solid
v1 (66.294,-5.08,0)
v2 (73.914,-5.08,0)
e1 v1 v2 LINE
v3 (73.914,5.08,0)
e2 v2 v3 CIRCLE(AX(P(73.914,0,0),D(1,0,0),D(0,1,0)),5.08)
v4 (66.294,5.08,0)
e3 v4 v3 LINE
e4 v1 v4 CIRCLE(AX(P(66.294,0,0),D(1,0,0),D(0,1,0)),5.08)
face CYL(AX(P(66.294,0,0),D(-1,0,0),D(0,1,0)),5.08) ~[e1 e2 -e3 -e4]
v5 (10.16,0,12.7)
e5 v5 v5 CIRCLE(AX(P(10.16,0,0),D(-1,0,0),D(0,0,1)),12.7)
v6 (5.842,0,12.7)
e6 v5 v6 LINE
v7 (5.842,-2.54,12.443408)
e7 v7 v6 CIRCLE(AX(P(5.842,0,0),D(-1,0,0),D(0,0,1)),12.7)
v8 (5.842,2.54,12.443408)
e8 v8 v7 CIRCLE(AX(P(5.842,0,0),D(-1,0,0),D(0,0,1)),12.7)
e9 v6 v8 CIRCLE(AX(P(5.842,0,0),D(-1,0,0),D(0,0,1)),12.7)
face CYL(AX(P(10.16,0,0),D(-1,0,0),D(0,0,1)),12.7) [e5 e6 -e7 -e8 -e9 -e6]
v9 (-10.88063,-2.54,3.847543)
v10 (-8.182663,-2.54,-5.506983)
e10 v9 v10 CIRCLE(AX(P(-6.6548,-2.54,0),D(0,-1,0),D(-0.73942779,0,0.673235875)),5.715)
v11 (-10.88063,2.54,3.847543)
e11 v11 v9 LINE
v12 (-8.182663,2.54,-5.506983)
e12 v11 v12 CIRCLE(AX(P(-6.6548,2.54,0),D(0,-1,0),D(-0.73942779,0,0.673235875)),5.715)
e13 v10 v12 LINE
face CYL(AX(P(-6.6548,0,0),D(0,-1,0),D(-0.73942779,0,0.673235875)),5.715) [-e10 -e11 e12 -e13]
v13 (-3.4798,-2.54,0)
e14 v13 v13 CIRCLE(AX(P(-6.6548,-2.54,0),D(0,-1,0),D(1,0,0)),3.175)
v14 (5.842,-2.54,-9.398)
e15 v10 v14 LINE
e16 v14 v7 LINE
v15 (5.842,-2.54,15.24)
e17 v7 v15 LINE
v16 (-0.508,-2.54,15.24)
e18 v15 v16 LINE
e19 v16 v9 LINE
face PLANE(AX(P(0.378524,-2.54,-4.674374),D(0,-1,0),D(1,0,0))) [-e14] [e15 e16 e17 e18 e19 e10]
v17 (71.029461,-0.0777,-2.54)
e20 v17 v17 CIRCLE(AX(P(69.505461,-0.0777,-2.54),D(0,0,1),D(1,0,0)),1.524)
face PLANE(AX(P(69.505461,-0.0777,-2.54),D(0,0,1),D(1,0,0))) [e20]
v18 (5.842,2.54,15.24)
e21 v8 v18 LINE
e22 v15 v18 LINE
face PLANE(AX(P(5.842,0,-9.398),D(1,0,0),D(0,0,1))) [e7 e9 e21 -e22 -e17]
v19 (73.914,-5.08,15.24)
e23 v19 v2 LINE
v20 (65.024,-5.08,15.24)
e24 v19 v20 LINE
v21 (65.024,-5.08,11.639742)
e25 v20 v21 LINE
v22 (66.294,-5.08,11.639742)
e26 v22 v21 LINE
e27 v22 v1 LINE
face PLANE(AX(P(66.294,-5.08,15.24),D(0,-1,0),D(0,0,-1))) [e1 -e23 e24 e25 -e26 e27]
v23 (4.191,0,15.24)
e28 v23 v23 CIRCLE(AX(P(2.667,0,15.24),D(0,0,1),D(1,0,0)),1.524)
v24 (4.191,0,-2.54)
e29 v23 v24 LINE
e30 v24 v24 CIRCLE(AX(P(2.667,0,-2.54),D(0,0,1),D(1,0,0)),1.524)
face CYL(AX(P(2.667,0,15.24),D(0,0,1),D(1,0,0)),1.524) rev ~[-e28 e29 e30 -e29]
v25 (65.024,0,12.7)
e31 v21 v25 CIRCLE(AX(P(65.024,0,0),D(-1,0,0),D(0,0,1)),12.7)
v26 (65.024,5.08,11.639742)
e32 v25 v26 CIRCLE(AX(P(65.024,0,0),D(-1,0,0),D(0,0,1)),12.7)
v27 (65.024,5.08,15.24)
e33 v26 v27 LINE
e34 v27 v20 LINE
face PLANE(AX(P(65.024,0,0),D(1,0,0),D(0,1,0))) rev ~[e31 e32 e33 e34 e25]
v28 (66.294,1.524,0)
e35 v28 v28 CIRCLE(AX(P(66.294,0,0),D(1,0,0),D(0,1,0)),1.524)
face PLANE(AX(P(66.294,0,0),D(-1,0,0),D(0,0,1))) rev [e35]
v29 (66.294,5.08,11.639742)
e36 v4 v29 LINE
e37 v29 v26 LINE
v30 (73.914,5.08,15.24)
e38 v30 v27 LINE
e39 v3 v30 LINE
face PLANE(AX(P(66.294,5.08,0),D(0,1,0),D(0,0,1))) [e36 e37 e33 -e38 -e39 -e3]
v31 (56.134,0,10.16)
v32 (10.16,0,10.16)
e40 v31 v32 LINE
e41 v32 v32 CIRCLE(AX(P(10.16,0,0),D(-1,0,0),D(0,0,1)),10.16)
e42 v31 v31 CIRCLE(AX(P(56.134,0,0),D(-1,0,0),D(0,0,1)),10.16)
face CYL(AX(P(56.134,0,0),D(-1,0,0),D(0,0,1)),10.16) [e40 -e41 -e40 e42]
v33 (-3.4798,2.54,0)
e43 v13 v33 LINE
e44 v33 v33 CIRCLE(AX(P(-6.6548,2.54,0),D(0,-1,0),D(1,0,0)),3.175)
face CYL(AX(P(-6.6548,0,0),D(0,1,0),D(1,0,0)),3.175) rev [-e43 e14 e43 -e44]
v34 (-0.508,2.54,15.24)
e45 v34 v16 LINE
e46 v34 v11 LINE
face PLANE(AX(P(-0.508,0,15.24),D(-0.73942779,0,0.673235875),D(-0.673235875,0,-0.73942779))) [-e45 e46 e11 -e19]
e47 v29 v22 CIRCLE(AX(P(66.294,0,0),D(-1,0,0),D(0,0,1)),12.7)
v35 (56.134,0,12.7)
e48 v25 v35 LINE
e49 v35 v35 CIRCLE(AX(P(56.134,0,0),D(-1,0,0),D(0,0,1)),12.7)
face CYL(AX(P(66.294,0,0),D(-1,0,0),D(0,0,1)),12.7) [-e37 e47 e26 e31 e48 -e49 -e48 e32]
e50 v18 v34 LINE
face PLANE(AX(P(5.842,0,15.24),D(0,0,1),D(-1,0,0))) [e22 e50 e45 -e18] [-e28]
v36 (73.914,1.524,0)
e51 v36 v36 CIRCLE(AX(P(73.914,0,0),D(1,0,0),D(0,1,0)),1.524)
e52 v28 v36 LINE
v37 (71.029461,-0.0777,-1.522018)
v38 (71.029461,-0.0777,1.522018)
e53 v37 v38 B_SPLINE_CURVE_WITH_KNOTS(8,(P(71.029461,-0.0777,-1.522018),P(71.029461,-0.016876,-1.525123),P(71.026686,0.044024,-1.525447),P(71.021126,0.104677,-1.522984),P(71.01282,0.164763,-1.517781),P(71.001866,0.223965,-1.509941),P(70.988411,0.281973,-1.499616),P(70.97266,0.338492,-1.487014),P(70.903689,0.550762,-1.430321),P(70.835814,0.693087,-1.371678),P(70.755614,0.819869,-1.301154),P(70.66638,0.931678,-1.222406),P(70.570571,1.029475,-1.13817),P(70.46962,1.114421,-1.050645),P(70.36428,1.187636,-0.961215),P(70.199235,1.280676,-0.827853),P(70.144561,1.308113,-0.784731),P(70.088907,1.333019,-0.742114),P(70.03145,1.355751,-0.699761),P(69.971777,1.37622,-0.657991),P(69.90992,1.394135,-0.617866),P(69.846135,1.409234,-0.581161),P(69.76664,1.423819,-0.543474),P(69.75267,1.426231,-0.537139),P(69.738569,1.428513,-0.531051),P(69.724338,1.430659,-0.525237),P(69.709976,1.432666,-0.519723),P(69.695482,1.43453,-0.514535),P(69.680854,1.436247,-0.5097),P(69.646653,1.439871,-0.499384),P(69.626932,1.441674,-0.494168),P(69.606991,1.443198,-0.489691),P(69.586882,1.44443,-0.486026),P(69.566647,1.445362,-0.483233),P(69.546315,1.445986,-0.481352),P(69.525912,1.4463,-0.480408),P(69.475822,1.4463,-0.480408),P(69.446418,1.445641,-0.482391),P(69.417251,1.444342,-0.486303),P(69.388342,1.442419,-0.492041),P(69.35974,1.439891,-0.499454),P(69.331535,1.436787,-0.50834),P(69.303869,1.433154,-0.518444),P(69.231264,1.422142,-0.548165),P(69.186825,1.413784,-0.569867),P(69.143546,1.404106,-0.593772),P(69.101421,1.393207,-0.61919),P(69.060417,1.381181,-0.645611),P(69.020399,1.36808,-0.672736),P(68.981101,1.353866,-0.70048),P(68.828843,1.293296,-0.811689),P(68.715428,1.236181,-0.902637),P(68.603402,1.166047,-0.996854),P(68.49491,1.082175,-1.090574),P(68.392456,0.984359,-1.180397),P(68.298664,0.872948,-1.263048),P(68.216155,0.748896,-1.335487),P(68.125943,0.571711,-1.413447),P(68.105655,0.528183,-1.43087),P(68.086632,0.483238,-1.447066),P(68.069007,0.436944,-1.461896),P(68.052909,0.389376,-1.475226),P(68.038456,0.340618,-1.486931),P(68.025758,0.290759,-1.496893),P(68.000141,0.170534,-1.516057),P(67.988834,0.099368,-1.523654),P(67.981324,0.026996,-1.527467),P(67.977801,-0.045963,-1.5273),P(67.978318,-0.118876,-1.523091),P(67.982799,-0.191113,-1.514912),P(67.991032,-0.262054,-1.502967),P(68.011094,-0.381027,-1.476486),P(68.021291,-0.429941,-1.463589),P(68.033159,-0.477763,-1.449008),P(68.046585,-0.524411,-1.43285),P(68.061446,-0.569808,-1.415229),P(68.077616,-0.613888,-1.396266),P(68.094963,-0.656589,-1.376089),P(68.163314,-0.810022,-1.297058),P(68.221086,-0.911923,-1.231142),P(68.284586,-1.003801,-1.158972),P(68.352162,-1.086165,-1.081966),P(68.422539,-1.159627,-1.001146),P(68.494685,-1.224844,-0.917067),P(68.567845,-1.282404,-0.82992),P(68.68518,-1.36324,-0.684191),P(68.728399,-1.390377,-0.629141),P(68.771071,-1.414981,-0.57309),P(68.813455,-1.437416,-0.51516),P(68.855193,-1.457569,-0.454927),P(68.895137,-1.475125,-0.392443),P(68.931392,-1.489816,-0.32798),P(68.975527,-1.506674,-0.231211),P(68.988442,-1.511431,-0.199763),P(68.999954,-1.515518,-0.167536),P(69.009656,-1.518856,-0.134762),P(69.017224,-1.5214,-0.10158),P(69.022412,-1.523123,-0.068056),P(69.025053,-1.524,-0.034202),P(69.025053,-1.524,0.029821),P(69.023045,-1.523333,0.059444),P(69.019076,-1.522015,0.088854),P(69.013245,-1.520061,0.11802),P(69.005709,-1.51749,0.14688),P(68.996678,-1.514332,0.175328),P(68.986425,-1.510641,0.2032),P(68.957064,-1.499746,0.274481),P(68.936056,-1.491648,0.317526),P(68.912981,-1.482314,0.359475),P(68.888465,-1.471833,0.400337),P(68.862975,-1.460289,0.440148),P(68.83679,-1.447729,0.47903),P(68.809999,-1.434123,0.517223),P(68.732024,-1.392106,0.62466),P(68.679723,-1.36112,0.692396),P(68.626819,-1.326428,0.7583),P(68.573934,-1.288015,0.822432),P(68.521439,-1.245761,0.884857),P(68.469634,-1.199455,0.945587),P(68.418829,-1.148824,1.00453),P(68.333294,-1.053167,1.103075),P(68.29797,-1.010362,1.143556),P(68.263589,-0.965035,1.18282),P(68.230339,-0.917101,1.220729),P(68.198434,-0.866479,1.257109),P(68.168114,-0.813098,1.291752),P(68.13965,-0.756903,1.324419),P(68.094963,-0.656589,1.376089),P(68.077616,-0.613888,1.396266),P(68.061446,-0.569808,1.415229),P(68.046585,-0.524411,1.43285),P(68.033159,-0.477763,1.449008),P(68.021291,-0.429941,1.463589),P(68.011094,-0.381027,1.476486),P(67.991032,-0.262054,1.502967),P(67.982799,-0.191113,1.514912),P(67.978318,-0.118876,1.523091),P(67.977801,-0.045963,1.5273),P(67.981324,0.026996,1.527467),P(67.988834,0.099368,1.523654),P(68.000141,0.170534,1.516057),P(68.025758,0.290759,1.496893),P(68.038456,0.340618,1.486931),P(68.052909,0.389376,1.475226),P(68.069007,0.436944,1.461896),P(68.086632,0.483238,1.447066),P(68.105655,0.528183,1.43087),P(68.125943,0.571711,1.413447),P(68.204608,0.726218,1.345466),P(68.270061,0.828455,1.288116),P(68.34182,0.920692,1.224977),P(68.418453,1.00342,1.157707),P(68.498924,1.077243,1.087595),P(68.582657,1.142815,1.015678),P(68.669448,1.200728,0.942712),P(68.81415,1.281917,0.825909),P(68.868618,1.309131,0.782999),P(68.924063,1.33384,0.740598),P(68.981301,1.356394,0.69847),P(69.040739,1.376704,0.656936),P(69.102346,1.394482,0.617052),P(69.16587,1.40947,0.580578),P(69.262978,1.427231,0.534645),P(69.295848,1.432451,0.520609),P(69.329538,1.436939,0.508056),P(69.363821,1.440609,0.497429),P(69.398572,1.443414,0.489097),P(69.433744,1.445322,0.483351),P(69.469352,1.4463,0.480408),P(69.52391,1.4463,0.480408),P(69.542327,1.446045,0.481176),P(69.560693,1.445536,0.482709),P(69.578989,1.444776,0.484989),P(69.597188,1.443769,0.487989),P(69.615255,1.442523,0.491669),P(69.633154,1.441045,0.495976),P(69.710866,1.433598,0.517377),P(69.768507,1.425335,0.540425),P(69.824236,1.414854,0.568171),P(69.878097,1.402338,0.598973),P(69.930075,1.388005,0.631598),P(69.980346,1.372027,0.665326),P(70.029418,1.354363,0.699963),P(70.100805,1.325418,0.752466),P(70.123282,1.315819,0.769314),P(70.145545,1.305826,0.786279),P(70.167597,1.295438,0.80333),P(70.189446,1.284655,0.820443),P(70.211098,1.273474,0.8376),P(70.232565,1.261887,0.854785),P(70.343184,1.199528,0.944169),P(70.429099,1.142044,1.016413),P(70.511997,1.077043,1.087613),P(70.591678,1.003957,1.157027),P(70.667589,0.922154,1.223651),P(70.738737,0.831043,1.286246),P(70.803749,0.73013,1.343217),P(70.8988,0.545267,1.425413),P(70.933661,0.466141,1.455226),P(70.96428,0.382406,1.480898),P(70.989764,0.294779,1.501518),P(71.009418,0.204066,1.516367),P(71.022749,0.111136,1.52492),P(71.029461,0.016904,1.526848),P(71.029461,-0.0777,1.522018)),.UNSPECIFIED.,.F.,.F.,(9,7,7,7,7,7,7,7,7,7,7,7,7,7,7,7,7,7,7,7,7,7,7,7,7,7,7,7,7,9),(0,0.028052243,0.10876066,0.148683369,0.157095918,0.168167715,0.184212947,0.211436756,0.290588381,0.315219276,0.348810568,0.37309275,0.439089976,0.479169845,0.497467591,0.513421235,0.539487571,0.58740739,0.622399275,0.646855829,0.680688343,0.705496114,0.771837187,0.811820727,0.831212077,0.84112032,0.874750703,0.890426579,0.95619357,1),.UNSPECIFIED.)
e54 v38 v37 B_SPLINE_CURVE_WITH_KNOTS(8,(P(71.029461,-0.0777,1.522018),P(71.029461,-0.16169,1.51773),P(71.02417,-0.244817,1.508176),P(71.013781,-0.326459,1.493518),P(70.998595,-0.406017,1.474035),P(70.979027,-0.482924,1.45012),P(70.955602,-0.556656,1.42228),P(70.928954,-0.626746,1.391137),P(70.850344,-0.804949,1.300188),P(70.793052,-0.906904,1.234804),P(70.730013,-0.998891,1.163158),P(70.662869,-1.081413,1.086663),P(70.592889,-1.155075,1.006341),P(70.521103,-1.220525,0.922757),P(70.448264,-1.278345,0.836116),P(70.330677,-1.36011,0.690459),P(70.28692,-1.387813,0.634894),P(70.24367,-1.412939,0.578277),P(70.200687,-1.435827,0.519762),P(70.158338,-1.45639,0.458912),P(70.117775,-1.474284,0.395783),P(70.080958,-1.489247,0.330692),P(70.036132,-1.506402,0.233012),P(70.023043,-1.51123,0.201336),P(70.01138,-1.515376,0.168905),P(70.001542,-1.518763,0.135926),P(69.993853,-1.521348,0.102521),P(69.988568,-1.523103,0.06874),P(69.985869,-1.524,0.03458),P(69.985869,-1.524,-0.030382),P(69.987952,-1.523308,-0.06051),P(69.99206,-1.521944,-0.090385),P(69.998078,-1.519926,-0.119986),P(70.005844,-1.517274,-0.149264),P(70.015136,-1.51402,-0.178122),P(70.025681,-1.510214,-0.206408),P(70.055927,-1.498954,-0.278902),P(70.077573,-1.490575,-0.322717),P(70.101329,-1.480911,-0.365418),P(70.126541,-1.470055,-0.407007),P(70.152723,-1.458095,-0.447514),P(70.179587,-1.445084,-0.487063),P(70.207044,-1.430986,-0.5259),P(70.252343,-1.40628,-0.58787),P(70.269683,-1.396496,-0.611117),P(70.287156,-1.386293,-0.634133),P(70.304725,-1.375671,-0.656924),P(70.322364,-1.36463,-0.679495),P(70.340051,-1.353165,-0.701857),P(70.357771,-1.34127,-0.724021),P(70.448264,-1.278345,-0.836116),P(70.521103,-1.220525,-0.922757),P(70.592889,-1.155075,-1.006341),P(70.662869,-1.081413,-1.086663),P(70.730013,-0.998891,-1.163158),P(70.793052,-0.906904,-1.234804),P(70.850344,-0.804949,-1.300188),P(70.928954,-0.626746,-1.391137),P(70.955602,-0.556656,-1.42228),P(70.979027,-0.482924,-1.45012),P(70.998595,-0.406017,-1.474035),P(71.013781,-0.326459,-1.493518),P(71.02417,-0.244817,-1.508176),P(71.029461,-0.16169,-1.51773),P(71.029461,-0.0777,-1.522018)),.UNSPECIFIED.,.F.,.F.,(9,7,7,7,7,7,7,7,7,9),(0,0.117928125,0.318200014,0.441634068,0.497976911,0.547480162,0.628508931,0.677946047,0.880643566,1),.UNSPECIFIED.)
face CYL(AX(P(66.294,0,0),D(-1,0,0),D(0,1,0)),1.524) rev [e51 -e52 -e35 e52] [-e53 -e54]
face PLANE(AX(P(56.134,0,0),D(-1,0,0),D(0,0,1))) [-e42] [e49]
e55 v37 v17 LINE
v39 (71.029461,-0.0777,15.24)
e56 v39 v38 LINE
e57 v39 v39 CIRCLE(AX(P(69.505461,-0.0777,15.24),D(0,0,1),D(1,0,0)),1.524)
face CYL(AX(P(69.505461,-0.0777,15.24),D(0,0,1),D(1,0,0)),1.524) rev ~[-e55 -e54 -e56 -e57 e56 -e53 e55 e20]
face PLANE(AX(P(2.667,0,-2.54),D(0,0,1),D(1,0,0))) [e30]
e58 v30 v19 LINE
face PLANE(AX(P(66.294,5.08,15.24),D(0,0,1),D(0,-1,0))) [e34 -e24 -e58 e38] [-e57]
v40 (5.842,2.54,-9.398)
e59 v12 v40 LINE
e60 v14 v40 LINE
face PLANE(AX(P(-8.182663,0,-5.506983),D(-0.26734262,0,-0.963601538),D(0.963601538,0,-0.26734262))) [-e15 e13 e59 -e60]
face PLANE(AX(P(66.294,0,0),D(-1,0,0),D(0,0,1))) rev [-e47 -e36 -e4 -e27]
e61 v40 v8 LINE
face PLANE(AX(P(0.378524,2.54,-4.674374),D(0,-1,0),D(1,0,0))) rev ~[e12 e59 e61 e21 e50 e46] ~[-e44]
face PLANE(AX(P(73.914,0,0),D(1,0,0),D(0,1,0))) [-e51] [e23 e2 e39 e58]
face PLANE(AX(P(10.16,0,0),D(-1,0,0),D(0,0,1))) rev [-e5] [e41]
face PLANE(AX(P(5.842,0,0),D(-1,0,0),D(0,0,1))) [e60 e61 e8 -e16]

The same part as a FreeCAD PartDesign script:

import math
import FreeCAD as App
import Part
import Sketcher
from FreeCAD import Vector
Q = App.Units.Quantity

doc = App.newDocument("Part")
body = doc.addObject("PartDesign::Body", "Body")

# Sketch on XZ plane
sketch1 = doc.addObject("Sketcher::SketchObject", "Sketch")
body.addObject(sketch1)
sketch1.AttachmentSupport = (doc.XZ_Plane, [""])
sketch1.MapMode = "FlatFace"
sketch1.addGeometry([
    Part.LineSegment(Vector(5.8, 12.7, 0), Vector(5.8, 0, 0)),  # 0
    Part.LineSegment(Vector(5.8, 0, 0), Vector(66.3, 0, 0)),  # 1
    Part.LineSegment(Vector(66.3, 0, 0), Vector(66.3, 12.7, 0)),  # 2
    Part.LineSegment(Vector(66.3, 12.7, 0), Vector(56.1, 12.7, 0)),  # 3
    Part.LineSegment(Vector(56.1, 12.7, 0), Vector(56.1, 10.2, 0)),  # 4
    Part.LineSegment(Vector(56.1, 10.2, 0), Vector(10.2, 10.2, 0)),  # 5
    Part.LineSegment(Vector(10.2, 10.2, 0), Vector(10.2, 12.7, 0)),  # 6
    Part.LineSegment(Vector(10.2, 12.7, 0), Vector(5.8, 12.7, 0)),  # 7
], False)
sketch1.addConstraint([
    Sketcher.Constraint("Coincident", 0, 2, 1, 1),
    Sketcher.Constraint("Coincident", 1, 2, 2, 1),
    Sketcher.Constraint("Coincident", 2, 2, 3, 1),
    Sketcher.Constraint("Coincident", 3, 2, 4, 1),
    Sketcher.Constraint("Coincident", 4, 2, 5, 1),
    Sketcher.Constraint("Coincident", 5, 2, 6, 1),
    Sketcher.Constraint("Coincident", 6, 2, 7, 1),
    Sketcher.Constraint("Coincident", 7, 2, 0, 1),
    Sketcher.Constraint("Vertical", 0),
    Sketcher.Constraint("Horizontal", 1),
    Sketcher.Constraint("Vertical", 2),
    Sketcher.Constraint("Horizontal", 3),
    Sketcher.Constraint("Vertical", 4),
    Sketcher.Constraint("Horizontal", 5),
    Sketcher.Constraint("Vertical", 6),
    Sketcher.Constraint("Horizontal", 7),
    Sketcher.Constraint("PointOnObject", 0, 2, -1),
    Sketcher.Constraint("Horizontal", 3, 2, 6, 2),
    Sketcher.Constraint("DistanceX", 3, 2, 3, 1, Q("0.4 in")),
    Sketcher.Constraint("DistanceY", 0, 2, 0, 1, Q("0.5 in")),
    Sketcher.Constraint("DistanceY", 4, 2, 4, 1, Q("0.1 in")),
    Sketcher.Constraint("DistanceX", 1, 1, 1, 2, Q("2.38 in")),
    Sketcher.Constraint("DistanceX", 5, 2, 5, 1, Q("1.81 in")),
    Sketcher.Constraint("DistanceX", -1, 1, 5, 2, Q("0.4 in")),
])
revolution = doc.addObject("PartDesign::Revolution", "Revolution")
body.addObject(revolution)
revolution.Profile = sketch1
revolution.ReferenceAxis = (sketch1, ["H_Axis"])
revolution.Angle = 360

# Sketch on XZ plane
sketch2 = doc.addObject("Sketcher::SketchObject", "Sketch001")
body.addObject(sketch2)
sketch2.AttachmentSupport = (doc.XZ_Plane, [""])
sketch2.MapMode = "FlatFace"
sketch2.addGeometry([
    Part.LineSegment(Vector(5.8, 15.2, 0), Vector(-0.5, 15.2, 0)),  # 0
    Part.LineSegment(Vector(-0.5, 15.2, 0), Vector(-10.9, 3.8, 0)),  # 1
    Part.ArcOfCircle(Part.Circle(Vector(-6.7, 0, 0), Vector(0, 0, 1), 5.7), math.radians(138), math.radians(254)),  # 2
    Part.LineSegment(Vector(-8.2, -5.5, 0), Vector(5.8, -9.4, 0)),  # 3
    Part.LineSegment(Vector(5.8, -9.4, 0), Vector(5.8, 15.2, 0)),  # 4
    Part.Circle(Vector(-6.7, 0, 0), Vector(0, 0, 1), 3.2),  # 5
], False)
sketch2.addConstraint([
    Sketcher.Constraint("Coincident", 0, 2, 1, 1),
    Sketcher.Constraint("Tangent", 1, 2, 2, 1),
    Sketcher.Constraint("Tangent", 2, 2, 3, 1),
    Sketcher.Constraint("Coincident", 3, 2, 4, 1),
    Sketcher.Constraint("Coincident", 4, 2, 0, 1),
    Sketcher.Constraint("Horizontal", 0),
    Sketcher.Constraint("Vertical", 4),
    Sketcher.Constraint("Coincident", 5, 3, 2, 3),
    Sketcher.Constraint("PointOnObject", 2, 3, -1),
    Sketcher.Constraint("Diameter", 5, Q("0.25 in")),
    Sketcher.Constraint("Radius", 2, Q("0.225 in")),
    Sketcher.Constraint("DistanceX", 0, 2, 0, 1, Q("0.25 in")),
    Sketcher.Constraint("DistanceY", 4, 1, 4, 2, Q("0.97 in")),
    Sketcher.Constraint("DistanceY", -1, 1, 0, 2, Q("0.6 in")),
    Sketcher.Constraint("DistanceX", 0, 2, -1, 1, Q("0.02 in")),
    Sketcher.Constraint("DistanceX", 2, 3, -1, 1, Q("0.262 in")),
])
pad1 = doc.addObject("PartDesign::Pad", "Pad")
body.addObject(pad1)
pad1.Profile = sketch2
pad1.Length = Q("0.2 in")
pad1.Midplane = True

# Sketch on YZ plane
sketch3 = doc.addObject("Sketcher::SketchObject", "Sketch002")
body.addObject(sketch3)
sketch3.AttachmentSupport = (doc.YZ_Plane, [""])
sketch3.MapMode = "FlatFace"
sketch3.AttachmentOffset = App.Placement(Vector(0, 0, 2.61 * 25.4), App.Rotation())
sketch3.addGeometry([
    Part.ArcOfCircle(Part.Circle(Vector(0, 0, 0), Vector(0, 0, 1), 5.1), math.radians(180), math.radians(360)),  # 0
    Part.LineSegment(Vector(5.1, 0, 0), Vector(5.1, 15.2, 0)),  # 1
    Part.LineSegment(Vector(5.1, 15.2, 0), Vector(-5.1, 15.2, 0)),  # 2
    Part.LineSegment(Vector(-5.1, 15.2, 0), Vector(-5.1, 0, 0)),  # 3
    Part.Circle(Vector(0, 0, 0), Vector(0, 0, 1), 1.5),  # 4
], False)
sketch3.addConstraint([
    Sketcher.Constraint("Tangent", 0, 2, 1, 1),
    Sketcher.Constraint("Coincident", 1, 2, 2, 1),
    Sketcher.Constraint("Coincident", 2, 2, 3, 1),
    Sketcher.Constraint("Tangent", 3, 2, 0, 1),
    Sketcher.Constraint("Vertical", 1),
    Sketcher.Constraint("Horizontal", 2),
    Sketcher.Constraint("Vertical", 3),
    Sketcher.Constraint("Coincident", 0, 3, -1, 1),
    Sketcher.Constraint("Coincident", 4, 3, -1, 1),
    Sketcher.Constraint("Radius", 0, Q("0.2 in")),
    Sketcher.Constraint("Diameter", 4, Q("0.12 in")),
    Sketcher.Constraint("DistanceY", 1, 1, 1, 2, Q("0.6 in")),
])
pad2 = doc.addObject("PartDesign::Pad", "Pad001")
body.addObject(pad2)
pad2.Profile = sketch3
pad2.Type = "TwoLengths"
pad2.Length = Q("0.3 in")
pad2.Length2 = Q("0.05 in")

# Sketch on XY plane
sketch4 = doc.addObject("Sketcher::SketchObject", "Sketch003")
body.addObject(sketch4)
sketch4.AttachmentSupport = (doc.XY_Plane, [""])
sketch4.MapMode = "FlatFace"
sketch4.AttachmentOffset = App.Placement(Vector(0, 0, 0.6 * 25.4), App.Rotation())
sketch4.addGeometry([
    Part.Circle(Vector(2.7, 0, 0), Vector(0, 0, 1), 1.5),
    Part.Circle(Vector(69.5, -0.1, 0), Vector(0, 0, 1), 1.5),
], False)
sketch4.addConstraint([
    Sketcher.Constraint("Equal", 0, 1),
    Sketcher.Constraint("PointOnObject", 0, 3, -1),
    Sketcher.Constraint("Diameter", 0, Q("0.12 in")),
    Sketcher.Constraint("DistanceX", -1, 1, 0, 3, Q("0.105 in")),
    Sketcher.Constraint("DistanceY", 1, 3, -1, 1, 0.0777),
    Sketcher.Constraint("DistanceX", -1, 1, 1, 3, 69.505461),
])
pocket1 = doc.addObject("PartDesign::Pocket", "Pocket")
body.addObject(pocket1)
pocket1.Profile = sketch4
pocket1.Length = Q("0.7 in")

doc.recompute()
